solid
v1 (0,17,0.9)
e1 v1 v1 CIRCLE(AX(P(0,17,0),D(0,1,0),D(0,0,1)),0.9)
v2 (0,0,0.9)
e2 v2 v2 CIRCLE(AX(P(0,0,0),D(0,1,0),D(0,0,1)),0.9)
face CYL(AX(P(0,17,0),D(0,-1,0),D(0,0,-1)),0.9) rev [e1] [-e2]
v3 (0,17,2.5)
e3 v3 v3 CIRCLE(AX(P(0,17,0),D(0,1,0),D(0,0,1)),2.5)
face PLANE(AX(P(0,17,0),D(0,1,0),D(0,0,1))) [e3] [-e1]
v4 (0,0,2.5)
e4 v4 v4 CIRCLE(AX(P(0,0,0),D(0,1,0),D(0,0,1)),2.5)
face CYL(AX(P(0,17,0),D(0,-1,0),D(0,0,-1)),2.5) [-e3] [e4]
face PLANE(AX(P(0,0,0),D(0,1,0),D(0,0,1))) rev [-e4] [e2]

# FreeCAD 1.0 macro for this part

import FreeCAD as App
import Part
import Sketcher

V = App.Vector

doc = App.newDocument("Part")
params = doc.addObject("Spreadsheet::Sheet", "Params")
for row, (alias, value) in enumerate([
    ("sketch1_diameter", "5 mm"),
    ("sketch1_diameter2", "1.8 mm"),
    ("pad1_length", "17 mm"),
], start=1):
    params.set(f"A{row}", alias)
    params.set(f"B{row}", "=" + value)
    params.setAlias(f"B{row}", alias)

body = doc.addObject("PartDesign::Body", "Body")

sketch1 = body.newObject("Sketcher::SketchObject", "Sketch")
sketch1.AttachmentSupport = (doc.getObject("XZ_Plane"), [""])
sketch1.MapMode = "FlatFace"
sketch1.addGeometry([
    Part.Circle(V(0, 0, 0), V(0, 0, 1), 2.5),
    Part.Circle(V(0, 0, 0), V(0, 0, 1), 0.9),
], False)
sketch1.addConstraint([
    Sketcher.Constraint("Coincident", 0, 3, -1, 1),
    Sketcher.Constraint("Coincident", 1, 3, -1, 1),
    Sketcher.Constraint("Diameter", 0, 5.0),
    Sketcher.Constraint("Diameter", 1, 1.8),
])
sketch1.setExpression("Constraints[2]", "Params.sketch1_diameter")
sketch1.setExpression("Constraints[3]", "Params.sketch1_diameter2")
pad1 = body.newObject("PartDesign::Pad", "Pad")
pad1.Profile = sketch1
pad1.setExpression("Length", "Params.pad1_length")
pad1.Reversed = True

doc.recompute()
